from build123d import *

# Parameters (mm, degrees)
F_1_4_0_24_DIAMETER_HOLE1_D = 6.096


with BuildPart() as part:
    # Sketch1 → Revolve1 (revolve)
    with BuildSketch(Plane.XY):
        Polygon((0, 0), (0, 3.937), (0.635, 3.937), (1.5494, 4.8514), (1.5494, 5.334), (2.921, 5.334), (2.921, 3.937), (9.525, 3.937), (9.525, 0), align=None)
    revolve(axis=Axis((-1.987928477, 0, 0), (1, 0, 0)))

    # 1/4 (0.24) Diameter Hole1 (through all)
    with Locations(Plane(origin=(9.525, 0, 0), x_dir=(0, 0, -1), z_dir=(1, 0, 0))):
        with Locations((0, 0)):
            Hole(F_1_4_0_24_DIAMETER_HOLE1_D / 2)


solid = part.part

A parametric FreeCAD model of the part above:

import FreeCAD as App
import Part
import Sketcher
from FreeCAD import Vector
Q = App.Units.Quantity


def add_polygon(sketch, points):
    """Adds a closed chain of lines whose ends are joined by coincident constraints."""
    first, n = sketch.GeometryCount, len(points)
    for a, b in zip(points, points[1:] + points[:1]):
        sketch.addGeometry(Part.LineSegment(App.Vector(*a, 0), App.Vector(*b, 0)), False)
    for i in range(n):
        sketch.addConstraint(Sketcher.Constraint("Coincident", first + i, 2, first + (i + 1) % n, 1))

doc = App.newDocument("Part")
body = doc.addObject("PartDesign::Body", "Body")

sketch1 = body.newObject("Sketcher::SketchObject", "Sketch")
sketch1.AttachmentSupport = (doc.getObject("XY_Plane"), [""])
sketch1.MapMode = "FlatFace"
add_polygon(sketch1, [(0, 3.94), (0, 0), (9.53, 0), (9.53, 3.94), (2.92, 3.94), (2.92, 5.33), (1.55, 5.33), (1.55, 4.85), (0.64, 3.94)])
sketch1.addConstraint(Sketcher.Constraint("Vertical", 0))
sketch1.addConstraint(Sketcher.Constraint("Horizontal", 1))
sketch1.addConstraint(Sketcher.Constraint("Vertical", 2))
sketch1.addConstraint(Sketcher.Constraint("Horizontal", 3))
sketch1.addConstraint(Sketcher.Constraint("Vertical", 4))
sketch1.addConstraint(Sketcher.Constraint("Horizontal", 5))
sketch1.addConstraint(Sketcher.Constraint("Vertical", 6))
sketch1.addConstraint(Sketcher.Constraint("Horizontal", 8))
sketch1.addConstraint(Sketcher.Constraint("Coincident", 0, 2, -1, 1))
sketch1.addConstraint(Sketcher.Constraint("Horizontal", 3, 2, 7, 2))
sketch1.addConstraint(Sketcher.Constraint("Angle", 7, Q("-135 deg")))
sketch1.addConstraint(Sketcher.Constraint("DistanceX", 3, 2, 3, 1, Q("0.26 in")))
sketch1.addConstraint(Sketcher.Constraint("DistanceX", 1, 1, 1, 2, Q("0.375 in")))
sketch1.addConstraint(Sketcher.Constraint("DistanceX", 5, 2, 5, 1, Q("0.054 in")))
sketch1.addConstraint(Sketcher.Constraint("DistanceX", 8, 2, 8, 1, Q("0.025 in")))
sketch1.addConstraint(Sketcher.Constraint("DistanceY", 0, 2, 0, 1, Q("0.155 in")))
sketch1.addConstraint(Sketcher.Constraint("DistanceY", 4, 1, 4, 2, Q("0.055 in")))
revolution = body.newObject("PartDesign::Revolution", "Revolution")
revolution.Profile = sketch1
revolution.ReferenceAxis = (sketch1, ["H_Axis"])
revolution.Angle = 360

sketch2 = body.newObject("Sketcher::SketchObject", "Sketch001")
sketch2.AttachmentSupport = (doc.getObject("YZ_Plane"), [""])
sketch2.MapMode = "FlatFace"
sketch2.AttachmentOffset = App.Placement(Vector(0, 0, 0.375 * 25.4), App.Rotation())
sketch2.addGeometry(Part.Circle(Vector(0, 0, 0), Vector(0, 0, 1), 3), False)
sketch2.addConstraint(Sketcher.Constraint("Coincident", 0, 3, -1, 1))
sketch2.addConstraint(Sketcher.Constraint("Diameter", 0, Q("0.24 in")))
doc.recompute()
hole = body.newObject("PartDesign::Hole", "Hole")
hole.Profile = sketch2
hole.ThreadType = "None"
hole.Diameter = Q("0.24 in")
hole.DepthType = "ThroughAll"

doc.recompute()
